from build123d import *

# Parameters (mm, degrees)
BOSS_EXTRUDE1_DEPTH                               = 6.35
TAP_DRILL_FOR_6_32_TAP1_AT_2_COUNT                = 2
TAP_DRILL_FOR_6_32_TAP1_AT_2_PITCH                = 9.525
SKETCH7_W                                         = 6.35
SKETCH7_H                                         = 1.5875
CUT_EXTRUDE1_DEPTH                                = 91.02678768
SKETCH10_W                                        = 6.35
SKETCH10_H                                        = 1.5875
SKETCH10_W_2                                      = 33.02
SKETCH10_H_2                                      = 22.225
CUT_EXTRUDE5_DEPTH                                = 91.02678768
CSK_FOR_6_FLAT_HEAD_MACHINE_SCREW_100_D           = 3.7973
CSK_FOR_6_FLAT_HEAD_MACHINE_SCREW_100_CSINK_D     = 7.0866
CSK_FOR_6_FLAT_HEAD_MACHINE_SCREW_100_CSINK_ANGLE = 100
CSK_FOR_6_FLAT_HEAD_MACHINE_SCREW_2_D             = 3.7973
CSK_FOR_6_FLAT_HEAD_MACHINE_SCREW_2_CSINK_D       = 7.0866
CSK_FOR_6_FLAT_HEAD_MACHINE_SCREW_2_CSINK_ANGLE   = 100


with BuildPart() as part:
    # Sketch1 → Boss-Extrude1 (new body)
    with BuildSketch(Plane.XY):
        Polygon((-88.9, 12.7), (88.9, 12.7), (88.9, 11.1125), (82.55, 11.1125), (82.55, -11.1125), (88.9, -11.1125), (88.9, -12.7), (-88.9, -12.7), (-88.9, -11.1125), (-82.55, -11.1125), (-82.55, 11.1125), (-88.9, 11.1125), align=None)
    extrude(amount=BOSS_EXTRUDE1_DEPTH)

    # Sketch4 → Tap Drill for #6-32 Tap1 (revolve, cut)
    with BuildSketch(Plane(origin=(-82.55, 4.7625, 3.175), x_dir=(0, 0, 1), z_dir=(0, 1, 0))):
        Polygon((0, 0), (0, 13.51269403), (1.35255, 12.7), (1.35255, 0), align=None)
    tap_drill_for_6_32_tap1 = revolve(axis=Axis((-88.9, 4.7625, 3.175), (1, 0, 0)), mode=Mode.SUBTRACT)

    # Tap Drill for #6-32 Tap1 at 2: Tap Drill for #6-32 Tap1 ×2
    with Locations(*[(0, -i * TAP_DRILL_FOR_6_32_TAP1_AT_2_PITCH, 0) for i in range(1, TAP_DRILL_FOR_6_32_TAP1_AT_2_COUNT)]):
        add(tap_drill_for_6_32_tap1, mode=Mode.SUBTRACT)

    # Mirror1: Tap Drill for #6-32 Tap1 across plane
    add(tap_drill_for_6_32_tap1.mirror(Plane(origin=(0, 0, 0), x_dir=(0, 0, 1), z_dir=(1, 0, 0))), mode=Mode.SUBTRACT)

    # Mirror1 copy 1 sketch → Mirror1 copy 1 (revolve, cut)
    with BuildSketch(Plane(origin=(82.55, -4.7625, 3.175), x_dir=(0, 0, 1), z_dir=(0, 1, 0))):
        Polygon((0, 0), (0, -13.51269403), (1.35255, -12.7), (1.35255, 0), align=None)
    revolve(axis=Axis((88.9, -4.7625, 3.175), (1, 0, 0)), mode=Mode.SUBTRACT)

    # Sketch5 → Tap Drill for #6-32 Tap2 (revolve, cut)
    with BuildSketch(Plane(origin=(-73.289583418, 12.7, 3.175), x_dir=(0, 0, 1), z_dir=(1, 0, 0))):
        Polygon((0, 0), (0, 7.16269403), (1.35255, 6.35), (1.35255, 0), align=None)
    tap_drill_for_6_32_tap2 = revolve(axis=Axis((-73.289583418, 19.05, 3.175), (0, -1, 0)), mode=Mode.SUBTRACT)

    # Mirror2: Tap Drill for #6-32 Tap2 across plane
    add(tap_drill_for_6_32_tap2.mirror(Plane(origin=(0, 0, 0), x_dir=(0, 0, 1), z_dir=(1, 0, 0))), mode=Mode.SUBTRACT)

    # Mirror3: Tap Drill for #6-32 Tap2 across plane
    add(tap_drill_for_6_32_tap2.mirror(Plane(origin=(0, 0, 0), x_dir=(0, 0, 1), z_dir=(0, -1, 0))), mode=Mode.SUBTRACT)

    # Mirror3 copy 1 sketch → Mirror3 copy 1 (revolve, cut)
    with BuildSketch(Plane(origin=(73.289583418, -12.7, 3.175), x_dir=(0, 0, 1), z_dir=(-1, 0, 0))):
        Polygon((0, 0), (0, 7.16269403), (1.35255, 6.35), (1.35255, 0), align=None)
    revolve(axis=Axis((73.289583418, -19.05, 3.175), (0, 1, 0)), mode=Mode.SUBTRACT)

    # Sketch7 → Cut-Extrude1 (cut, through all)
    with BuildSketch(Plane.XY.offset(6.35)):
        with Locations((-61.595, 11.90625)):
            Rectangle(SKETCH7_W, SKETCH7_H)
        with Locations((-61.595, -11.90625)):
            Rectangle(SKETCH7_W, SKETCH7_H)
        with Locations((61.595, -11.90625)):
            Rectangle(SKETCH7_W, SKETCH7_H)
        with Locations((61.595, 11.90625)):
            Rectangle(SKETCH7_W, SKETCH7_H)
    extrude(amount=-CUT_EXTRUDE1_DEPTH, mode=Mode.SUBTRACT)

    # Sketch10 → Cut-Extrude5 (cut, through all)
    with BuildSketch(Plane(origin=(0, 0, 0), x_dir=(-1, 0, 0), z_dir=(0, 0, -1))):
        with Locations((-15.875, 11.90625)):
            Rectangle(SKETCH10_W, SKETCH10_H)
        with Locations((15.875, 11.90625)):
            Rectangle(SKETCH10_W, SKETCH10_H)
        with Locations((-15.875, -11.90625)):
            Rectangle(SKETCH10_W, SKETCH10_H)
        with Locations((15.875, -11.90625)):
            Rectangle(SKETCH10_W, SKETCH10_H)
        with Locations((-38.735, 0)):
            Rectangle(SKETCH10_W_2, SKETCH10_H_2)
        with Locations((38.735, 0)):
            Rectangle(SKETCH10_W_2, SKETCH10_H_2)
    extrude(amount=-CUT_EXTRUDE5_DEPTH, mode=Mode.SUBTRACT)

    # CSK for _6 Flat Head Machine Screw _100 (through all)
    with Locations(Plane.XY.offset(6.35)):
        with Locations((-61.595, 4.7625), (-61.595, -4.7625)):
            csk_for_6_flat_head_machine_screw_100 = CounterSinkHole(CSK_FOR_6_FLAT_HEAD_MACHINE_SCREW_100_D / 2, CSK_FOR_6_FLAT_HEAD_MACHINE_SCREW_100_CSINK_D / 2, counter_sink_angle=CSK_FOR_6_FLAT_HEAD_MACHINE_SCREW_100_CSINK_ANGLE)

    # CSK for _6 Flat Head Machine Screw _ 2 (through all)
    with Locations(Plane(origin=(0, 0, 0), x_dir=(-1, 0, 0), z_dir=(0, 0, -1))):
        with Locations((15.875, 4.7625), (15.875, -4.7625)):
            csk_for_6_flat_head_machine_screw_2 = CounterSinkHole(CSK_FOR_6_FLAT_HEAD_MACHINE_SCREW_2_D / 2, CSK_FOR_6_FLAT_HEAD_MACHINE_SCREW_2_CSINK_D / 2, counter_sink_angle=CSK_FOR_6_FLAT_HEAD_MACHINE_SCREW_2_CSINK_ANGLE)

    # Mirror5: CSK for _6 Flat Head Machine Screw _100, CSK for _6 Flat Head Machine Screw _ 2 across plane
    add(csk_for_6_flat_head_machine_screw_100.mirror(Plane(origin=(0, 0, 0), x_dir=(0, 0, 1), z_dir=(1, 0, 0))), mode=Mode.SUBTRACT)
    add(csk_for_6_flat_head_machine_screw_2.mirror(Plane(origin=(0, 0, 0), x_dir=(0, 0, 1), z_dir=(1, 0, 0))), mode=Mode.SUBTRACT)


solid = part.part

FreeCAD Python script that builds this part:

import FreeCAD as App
import Part
import Sketcher
Q = App.Units.Quantity


def add_polygon(sketch, points):
    """Adds a closed chain of lines whose ends are joined by coincident constraints."""
    first, n = sketch.GeometryCount, len(points)
    for a, b in zip(points, points[1:] + points[:1]):
        sketch.addGeometry(Part.LineSegment(App.Vector(*a, 0), App.Vector(*b, 0)), False)
    for i in range(n):
        sketch.addConstraint(Sketcher.Constraint("Coincident", first + i, 2, first + (i + 1) % n, 1))

doc = App.newDocument("Part")
body = doc.addObject("PartDesign::Body", "Body")

# Sketch on XY plane
sketch1 = body.newObject("Sketcher::SketchObject", "Sketch")
sketch1.AttachmentSupport = (doc.getObject("XY_Plane"), [""])
sketch1.MapMode = "FlatFace"
add_polygon(sketch1, [(88.9, 12.7), (-88.9, 12.7), (-88.9, 11.1125), (-82.55, 11.1125), (-82.55, -11.1125), (-88.9, -11.1125), (-88.9, -12.7), (88.9, -12.7), (88.9, -11.1125), (82.55, -11.1125), (82.55, 11.1125), (88.9, 11.1125)])  # lines 0-11
sketch1.addConstraint([
    Sketcher.Constraint("Horizontal", 0),
    Sketcher.Constraint("Vertical", 1),
    Sketcher.Constraint("Horizontal", 2),
    Sketcher.Constraint("Vertical", 3),
    Sketcher.Constraint("Horizontal", 4),
    Sketcher.Constraint("Vertical", 5),
    Sketcher.Constraint("Horizontal", 6),
    Sketcher.Constraint("Vertical", 7),
    Sketcher.Constraint("Horizontal", 8),
    Sketcher.Constraint("Vertical", 9),
    Sketcher.Constraint("Horizontal", 10),
    Sketcher.Constraint("Vertical", 11),
    Sketcher.Constraint("Symmetric", 0, 2, 6, 2, -1, 1),
    Sketcher.Constraint("Symmetric", 2, 2, 8, 2, -1, 1),
    Sketcher.Constraint("Symmetric", 4, 2, 10, 2, -1, 1),
    Sketcher.Constraint("Symmetric", 4, 2, 7, 2, -2),
    Sketcher.Constraint("DistanceX", 0, 2, 0, 1, Q("7 in")),
    Sketcher.Constraint("DistanceY", 5, 2, 0, 2, Q("1 in")),
    Sketcher.Constraint("DistanceX", 2, 1, 2, 2, Q("0.25 in")),
    Sketcher.Constraint("DistanceY", 1, 2, 1, 1, Q("0.0625 in")),
])
pad1 = body.newObject("PartDesign::Pad", "Pad")
pad1.Profile = sketch1
pad1.Length = Q("0.25 in")

# Sketch on XZ plane
sketch2 = body.newObject("Sketcher::SketchObject", "Sketch001")
sketch2.AttachmentSupport = (doc.getObject("XZ_Plane"), [""])
sketch2.MapMode = "FlatFace"
sketch2.AttachmentOffset = App.Placement(App.Vector(0, 0, -0.1875 * 25.4), App.Rotation())
add_polygon(sketch2, [(-69.037306, 3.175), (-82.55, 3.175), (-82.55, 4.52755), (-69.85, 4.52755)])  # lines 0-3
sketch2.addGeometry(Part.LineSegment(App.Vector(-82.55, 3.175, 0), App.Vector(-69.037306, 3.175, 0)), True)  # axis
sketch2.addConstraint([
    Sketcher.Constraint("Horizontal", 0),
    Sketcher.Constraint("Vertical", 1),
    Sketcher.Constraint("Horizontal", 2),
    Sketcher.Constraint("Horizontal", 4),
    Sketcher.Constraint("Coincident", 4, 1, 0, 2),
    Sketcher.Constraint("Equal", 0, 4),
    Sketcher.Constraint("DistanceX", 2, 1, 2, 2, Q("0.5 in")),
    Sketcher.Constraint("Angle", 3, Q("-59 deg")),
    Sketcher.Constraint("DistanceX", 0, 2, -1, 1, Q("3.25 in")),
    Sketcher.Constraint("DistanceY", -1, 1, 0, 2, Q("0.125 in")),
    Sketcher.Constraint("DistanceY", 1, 1, 1, 2, 1.35255),
])
groove = body.newObject("PartDesign::Groove", "Groove")
groove.Profile = sketch2
groove.ReferenceAxis = (sketch2, ["Axis0"])
groove.Angle = 360
doc.recompute()

linearpattern = body.newObject("PartDesign::LinearPattern", "LinearPattern")
linearpattern.Originals = [groove]
linearpattern.Direction = (doc.getObject("Y_Axis"), [""])
linearpattern.Mode = "offset"
linearpattern.Offset = Q("0.375 in")
linearpattern.Occurrences = 2
linearpattern.Reversed = True
body.Tip = linearpattern
doc.recompute()

mirrored = body.newObject("PartDesign::Mirrored", "Mirrored")
mirrored.Originals = [groove]
mirrored.MirrorPlane = (doc.getObject("YZ_Plane"), [""])
body.Tip = mirrored

# Sketch on XZ plane
sketch3 = body.newObject("Sketcher::SketchObject", "Sketch002")
sketch3.AttachmentSupport = (doc.getObject("XZ_Plane"), [""])
sketch3.MapMode = "FlatFace"
sketch3.AttachmentOffset = App.Placement(App.Vector(0, 0, 0.1875 * 25.4), App.Rotation())
add_polygon(sketch3, [(82.55, 3.175), (69.037306, 3.175), (69.85, 4.52755), (82.55, 4.52755)])  # lines 0-3
sketch3.addGeometry(Part.LineSegment(App.Vector(69.037306, 3.175, 0), App.Vector(82.55, 3.175, 0)), True)  # axis
sketch3.addConstraint([
    Sketcher.Constraint("Horizontal", 0),
    Sketcher.Constraint("Horizontal", 2),
    Sketcher.Constraint("Vertical", 3),
    Sketcher.Constraint("Horizontal", 4),
    Sketcher.Constraint("Coincident", 4, 1, 0, 2),
    Sketcher.Constraint("Vertical", 2, 2, 4, 2),
    Sketcher.Constraint("DistanceX", 2, 1, 2, 2, Q("0.5 in")),
    Sketcher.Constraint("Angle", 1, Q("59 deg")),
    Sketcher.Constraint("DistanceX", -1, 1, 1, 2, Q("2.75 in")),
    Sketcher.Constraint("DistanceY", -1, 1, 0, 2, Q("0.125 in")),
    Sketcher.Constraint("DistanceY", 3, 2, 3, 1, 1.35255),
])
groove2 = body.newObject("PartDesign::Groove", "Groove001")
groove2.Profile = sketch3
groove2.ReferenceAxis = (sketch3, ["Axis0"])
groove2.Angle = 360

# Sketch on YZ plane
sketch4 = body.newObject("Sketcher::SketchObject", "Sketch003")
sketch4.AttachmentSupport = (doc.getObject("YZ_Plane"), [""])
sketch4.MapMode = "FlatFace"
sketch4.AttachmentOffset = App.Placement(App.Vector(0, 0, -73.289583), App.Rotation())
add_polygon(sketch4, [(5.537306, 3.175), (12.7, 3.175), (12.7, 4.52755), (6.35, 4.52755)])  # lines 0-3
sketch4.addGeometry(Part.LineSegment(App.Vector(12.7, 3.175, 0), App.Vector(5.537306, 3.175, 0)), True)  # axis
sketch4.addConstraint([
    Sketcher.Constraint("Horizontal", 0),
    Sketcher.Constraint("Vertical", 1),
    Sketcher.Constraint("Horizontal", 2),
    Sketcher.Constraint("Horizontal", 4),
    Sketcher.Constraint("Coincident", 4, 1, 0, 2),
    Sketcher.Constraint("Equal", 0, 4),
    Sketcher.Constraint("Angle", 3, Q("-121 deg")),
    Sketcher.Constraint("DistanceX", 2, 2, 2, 1, Q("0.25 in")),
    Sketcher.Constraint("DistanceX", -1, 1, 0, 2, Q("0.5 in")),
    Sketcher.Constraint("DistanceY", -1, 1, 0, 2, Q("0.125 in")),
    Sketcher.Constraint("DistanceY", 1, 1, 1, 2, 1.35255),
])
groove3 = body.newObject("PartDesign::Groove", "Groove002")
groove3.Profile = sketch4
groove3.ReferenceAxis = (sketch4, ["Axis0"])
groove3.Angle = 360
doc.recompute()

mirrored2 = body.newObject("PartDesign::Mirrored", "Mirrored001")
mirrored2.Originals = [groove3]
mirrored2.MirrorPlane = (doc.getObject("YZ_Plane"), [""])
body.Tip = mirrored2
doc.recompute()

mirrored3 = body.newObject("PartDesign::Mirrored", "Mirrored002")
mirrored3.Originals = [groove3]
mirrored3.MirrorPlane = (doc.getObject("XZ_Plane"), [""])
body.Tip = mirrored3

# Sketch on YZ plane
sketch5 = body.newObject("Sketcher::SketchObject", "Sketch004")
sketch5.AttachmentSupport = (doc.getObject("YZ_Plane"), [""])
sketch5.MapMode = "FlatFace"
sketch5.AttachmentOffset = App.Placement(App.Vector(0, 0, 73.289583), App.Rotation())
add_polygon(sketch5, [(-5.537306, 3.175), (-12.7, 3.175), (-12.7, 4.52755), (-6.35, 4.52755)])  # lines 0-3
sketch5.addGeometry(Part.LineSegment(App.Vector(-12.7, 3.175, 0), App.Vector(-5.537306, 3.175, 0)), True)  # axis
sketch5.addConstraint([
    Sketcher.Constraint("Horizontal", 0),
    Sketcher.Constraint("Vertical", 1),
    Sketcher.Constraint("Horizontal", 2),
    Sketcher.Constraint("Horizontal", 4),
    Sketcher.Constraint("Coincident", 4, 1, 0, 2),
    Sketcher.Constraint("Equal", 0, 4),
    Sketcher.Constraint("Angle", 3, Q("-59 deg")),
    Sketcher.Constraint("DistanceX", 2, 1, 2, 2, Q("0.25 in")),
    Sketcher.Constraint("DistanceX", 0, 2, -1, 1, Q("0.5 in")),
    Sketcher.Constraint("DistanceY", -1, 1, 0, 2, Q("0.125 in")),
    Sketcher.Constraint("DistanceY", 1, 1, 1, 2, 1.35255),
])
groove4 = body.newObject("PartDesign::Groove", "Groove003")
groove4.Profile = sketch5
groove4.ReferenceAxis = (sketch5, ["Axis0"])
groove4.Angle = 360

# Sketch on XY plane
sketch6 = body.newObject("Sketcher::SketchObject", "Sketch005")
sketch6.AttachmentSupport = (doc.getObject("XY_Plane"), [""])
sketch6.MapMode = "FlatFace"
sketch6.AttachmentOffset = App.Placement(App.Vector(0, 0, 0.25 * 25.4), App.Rotation())
add_polygon(sketch6, [(-64.77, 12.7), (-64.77, 11.1125), (-58.42, 11.1125), (-58.42, 12.7)])  # lines 0-3
add_polygon(sketch6, [(-64.77, -11.1125), (-64.77, -12.7), (-58.42, -12.7), (-58.42, -11.1125)])  # lines 4-7
add_polygon(sketch6, [(58.42, -11.1125), (58.42, -12.7), (64.77, -12.7), (64.77, -11.1125)])  # lines 8-11
add_polygon(sketch6, [(58.42, 12.7), (58.42, 11.1125), (64.77, 11.1125), (64.77, 12.7)])  # lines 12-15
sketch6.addConstraint([
    Sketcher.Constraint("Vertical", 0),
    Sketcher.Constraint("Horizontal", 1),
    Sketcher.Constraint("Vertical", 2),
    Sketcher.Constraint("Horizontal", 3),
    Sketcher.Constraint("Vertical", 4),
    Sketcher.Constraint("Horizontal", 5),
    Sketcher.Constraint("Vertical", 6),
    Sketcher.Constraint("Horizontal", 7),
    Sketcher.Constraint("Vertical", 8),
    Sketcher.Constraint("Horizontal", 9),
    Sketcher.Constraint("Vertical", 10),
    Sketcher.Constraint("Horizontal", 11),
    Sketcher.Constraint("Vertical", 12),
    Sketcher.Constraint("Horizontal", 13),
    Sketcher.Constraint("Vertical", 14),
    Sketcher.Constraint("Horizontal", 15),
    Sketcher.Constraint("Symmetric", 2, 2, 8, 2, -1, 1),
    Sketcher.Constraint("Symmetric", 0, 2, 10, 2, -1, 1),
    Sketcher.Constraint("Symmetric", 6, 2, 12, 2, -1, 1),
    Sketcher.Constraint("Symmetric", 4, 2, 14, 2, -1, 1),
    Sketcher.Constraint("Symmetric", 5, 2, 8, 2, -2),
    Sketcher.Constraint("Symmetric", 7, 2, 10, 2, -2),
    Sketcher.Constraint("DistanceY", 4, 2, 3, 2, Q("1 in")),
    Sketcher.Constraint("DistanceX", 1, 1, 1, 2, Q("0.25 in")),
    Sketcher.Constraint("DistanceX", 1, 2, -1, 1, Q("2.3 in")),
    Sketcher.Constraint("DistanceY", 0, 2, 0, 1, Q("0.0625 in")),
])
pocket1 = body.newObject("PartDesign::Pocket", "Pocket")
pocket1.Profile = sketch6
pocket1.Type = "ThroughAll"

# Sketch on XY plane
sketch7 = body.newObject("Sketcher::SketchObject", "Sketch006")
sketch7.AttachmentSupport = (doc.getObject("XY_Plane"), [""])
sketch7.MapMode = "FlatFace"
add_polygon(sketch7, [(19.05, 12.7), (19.05, 11.1125), (12.7, 11.1125), (12.7, 12.7)])  # lines 0-3
add_polygon(sketch7, [(-12.7, 12.7), (-12.7, 11.1125), (-19.05, 11.1125), (-19.05, 12.7)])  # lines 4-7
add_polygon(sketch7, [(19.05, -11.1125), (19.05, -12.7), (12.7, -12.7), (12.7, -11.1125)])  # lines 8-11
add_polygon(sketch7, [(-12.7, -11.1125), (-12.7, -12.7), (-19.05, -12.7), (-19.05, -11.1125)])  # lines 12-15
add_polygon(sketch7, [(55.245, 11.1125), (55.245, -11.1125), (22.225, -11.1125), (22.225, 11.1125)])  # lines 16-19
add_polygon(sketch7, [(-22.225, 11.1125), (-22.225, -11.1125), (-55.245, -11.1125), (-55.245, 11.1125)])  # lines 20-23
sketch7.addConstraint([
    Sketcher.Constraint("Vertical", 0),
    Sketcher.Constraint("Horizontal", 1),
    Sketcher.Constraint("Vertical", 2),
    Sketcher.Constraint("Horizontal", 3),
    Sketcher.Constraint("Vertical", 4),
    Sketcher.Constraint("Horizontal", 5),
    Sketcher.Constraint("Vertical", 6),
    Sketcher.Constraint("Horizontal", 7),
    Sketcher.Constraint("Vertical", 8),
    Sketcher.Constraint("Horizontal", 9),
    Sketcher.Constraint("Vertical", 10),
    Sketcher.Constraint("Horizontal", 11),
    Sketcher.Constraint("Vertical", 12),
    Sketcher.Constraint("Horizontal", 13),
    Sketcher.Constraint("Vertical", 14),
    Sketcher.Constraint("Horizontal", 15),
    Sketcher.Constraint("Vertical", 16),
    Sketcher.Constraint("Horizontal", 17),
    Sketcher.Constraint("Vertical", 18),
    Sketcher.Constraint("Horizontal", 19),
    Sketcher.Constraint("Vertical", 20),
    Sketcher.Constraint("Horizontal", 21),
    Sketcher.Constraint("Vertical", 22),
    Sketcher.Constraint("Horizontal", 23),
    Sketcher.Constraint("Symmetric", 6, 2, 8, 2, -1, 1),
    Sketcher.Constraint("Symmetric", 4, 2, 10, 2, -1, 1),
    Sketcher.Constraint("Symmetric", 2, 2, 12, 2, -1, 1),
    Sketcher.Constraint("Symmetric", 0, 2, 14, 2, -1, 1),
    Sketcher.Constraint("Symmetric", 18, 2, 20, 2, -1, 1),
    Sketcher.Constraint("Symmetric", 16, 2, 22, 2, -1, 1),
    Sketcher.Constraint("Symmetric", 1, 2, 4, 2, -2),
    Sketcher.Constraint("Symmetric", 3, 2, 6, 2, -2),
    Sketcher.Constraint("Horizontal", 15, 2, 16, 2),
    Sketcher.Constraint("Horizontal", 5, 2, 18, 2),
    Sketcher.Constraint("DistanceX", 17, 2, 17, 1, Q("1.3 in")),
    Sketcher.Constraint("DistanceX", 4, 2, 1, 2, Q("1 in")),
    Sketcher.Constraint("DistanceY", 8, 2, 3, 2, Q("1 in")),
    Sketcher.Constraint("DistanceX", 1, 2, 1, 1, Q("0.25 in")),
    Sketcher.Constraint("DistanceY", 0, 2, 0, 1, Q("0.0625 in")),
    Sketcher.Constraint("DistanceX", -1, 1, 16, 2, Q("2.175 in")),
])
pocket2 = body.newObject("PartDesign::Pocket", "Pocket001")
pocket2.Profile = sketch7
pocket2.Type = "ThroughAll"
pocket2.Reversed = True

# Sketch on XY plane
sketch8 = body.newObject("Sketcher::SketchObject", "Sketch007")
sketch8.AttachmentSupport = (doc.getObject("XY_Plane"), [""])
sketch8.MapMode = "FlatFace"
sketch8.AttachmentOffset = App.Placement(App.Vector(0, 0, 0.25 * 25.4), App.Rotation())
sketch8.addGeometry([
    Part.Circle(App.Vector(-61.595, 4.7625, 0), App.Vector(0, 0, 1), 1.89865),
    Part.Circle(App.Vector(-61.595, -4.7625, 0), App.Vector(0, 0, 1), 1.89865),
], False)
sketch8.addConstraint([
    Sketcher.Constraint("Equal", 0, 1),
    Sketcher.Constraint("Symmetric", 0, 3, 1, 3, -1),
    Sketcher.Constraint("Diameter", 0, Q("0.1495 in")),
    Sketcher.Constraint("DistanceX", 0, 3, -1, 1, Q("2.425 in")),
    Sketcher.Constraint("DistanceY", -1, 1, 0, 3, Q("0.1875 in")),
])
doc.recompute()
hole = body.newObject("PartDesign::Hole", "Hole")
hole.Profile = sketch8
hole.ThreadType = "None"
hole.Diameter = Q("0.1495 in")
hole.DepthType = "ThroughAll"
hole.HoleCutType = "Countersink"
hole.HoleCutDiameter = Q("0.279 in")
hole.HoleCutCountersinkAngle = 100

# Sketch on XY plane
sketch9 = body.newObject("Sketcher::SketchObject", "Sketch008")
sketch9.AttachmentSupport = (doc.getObject("XY_Plane"), [""])
sketch9.MapMode = "FlatFace"
sketch9.addGeometry([
    Part.Circle(App.Vector(-15.875, 4.7625, 0), App.Vector(0, 0, 1), 1.89865),
    Part.Circle(App.Vector(-15.875, -4.7625, 0), App.Vector(0, 0, 1), 1.89865),
], False)
sketch9.addConstraint([
    Sketcher.Constraint("Equal", 0, 1),
    Sketcher.Constraint("Symmetric", 0, 3, 1, 3, -1),
    Sketcher.Constraint("Diameter", 0, Q("0.1495 in")),
    Sketcher.Constraint("DistanceX", 0, 3, -1, 1, Q("0.625 in")),
    Sketcher.Constraint("DistanceY", -1, 1, 0, 3, Q("0.1875 in")),
])
doc.recompute()
hole2 = body.newObject("PartDesign::Hole", "Hole001")
hole2.Profile = sketch9
hole2.ThreadType = "None"
hole2.Diameter = Q("0.1495 in")
hole2.DepthType = "ThroughAll"
hole2.HoleCutType = "Countersink"
hole2.HoleCutDiameter = Q("0.279 in")
hole2.HoleCutCountersinkAngle = 100
hole2.Reversed = True
doc.recompute()

mirrored4 = body.newObject("PartDesign::Mirrored", "Mirrored003")
mirrored4.Originals = [hole, hole2]
mirrored4.MirrorPlane = (doc.getObject("YZ_Plane"), [""])
body.Tip = mirrored4

doc.recompute()
